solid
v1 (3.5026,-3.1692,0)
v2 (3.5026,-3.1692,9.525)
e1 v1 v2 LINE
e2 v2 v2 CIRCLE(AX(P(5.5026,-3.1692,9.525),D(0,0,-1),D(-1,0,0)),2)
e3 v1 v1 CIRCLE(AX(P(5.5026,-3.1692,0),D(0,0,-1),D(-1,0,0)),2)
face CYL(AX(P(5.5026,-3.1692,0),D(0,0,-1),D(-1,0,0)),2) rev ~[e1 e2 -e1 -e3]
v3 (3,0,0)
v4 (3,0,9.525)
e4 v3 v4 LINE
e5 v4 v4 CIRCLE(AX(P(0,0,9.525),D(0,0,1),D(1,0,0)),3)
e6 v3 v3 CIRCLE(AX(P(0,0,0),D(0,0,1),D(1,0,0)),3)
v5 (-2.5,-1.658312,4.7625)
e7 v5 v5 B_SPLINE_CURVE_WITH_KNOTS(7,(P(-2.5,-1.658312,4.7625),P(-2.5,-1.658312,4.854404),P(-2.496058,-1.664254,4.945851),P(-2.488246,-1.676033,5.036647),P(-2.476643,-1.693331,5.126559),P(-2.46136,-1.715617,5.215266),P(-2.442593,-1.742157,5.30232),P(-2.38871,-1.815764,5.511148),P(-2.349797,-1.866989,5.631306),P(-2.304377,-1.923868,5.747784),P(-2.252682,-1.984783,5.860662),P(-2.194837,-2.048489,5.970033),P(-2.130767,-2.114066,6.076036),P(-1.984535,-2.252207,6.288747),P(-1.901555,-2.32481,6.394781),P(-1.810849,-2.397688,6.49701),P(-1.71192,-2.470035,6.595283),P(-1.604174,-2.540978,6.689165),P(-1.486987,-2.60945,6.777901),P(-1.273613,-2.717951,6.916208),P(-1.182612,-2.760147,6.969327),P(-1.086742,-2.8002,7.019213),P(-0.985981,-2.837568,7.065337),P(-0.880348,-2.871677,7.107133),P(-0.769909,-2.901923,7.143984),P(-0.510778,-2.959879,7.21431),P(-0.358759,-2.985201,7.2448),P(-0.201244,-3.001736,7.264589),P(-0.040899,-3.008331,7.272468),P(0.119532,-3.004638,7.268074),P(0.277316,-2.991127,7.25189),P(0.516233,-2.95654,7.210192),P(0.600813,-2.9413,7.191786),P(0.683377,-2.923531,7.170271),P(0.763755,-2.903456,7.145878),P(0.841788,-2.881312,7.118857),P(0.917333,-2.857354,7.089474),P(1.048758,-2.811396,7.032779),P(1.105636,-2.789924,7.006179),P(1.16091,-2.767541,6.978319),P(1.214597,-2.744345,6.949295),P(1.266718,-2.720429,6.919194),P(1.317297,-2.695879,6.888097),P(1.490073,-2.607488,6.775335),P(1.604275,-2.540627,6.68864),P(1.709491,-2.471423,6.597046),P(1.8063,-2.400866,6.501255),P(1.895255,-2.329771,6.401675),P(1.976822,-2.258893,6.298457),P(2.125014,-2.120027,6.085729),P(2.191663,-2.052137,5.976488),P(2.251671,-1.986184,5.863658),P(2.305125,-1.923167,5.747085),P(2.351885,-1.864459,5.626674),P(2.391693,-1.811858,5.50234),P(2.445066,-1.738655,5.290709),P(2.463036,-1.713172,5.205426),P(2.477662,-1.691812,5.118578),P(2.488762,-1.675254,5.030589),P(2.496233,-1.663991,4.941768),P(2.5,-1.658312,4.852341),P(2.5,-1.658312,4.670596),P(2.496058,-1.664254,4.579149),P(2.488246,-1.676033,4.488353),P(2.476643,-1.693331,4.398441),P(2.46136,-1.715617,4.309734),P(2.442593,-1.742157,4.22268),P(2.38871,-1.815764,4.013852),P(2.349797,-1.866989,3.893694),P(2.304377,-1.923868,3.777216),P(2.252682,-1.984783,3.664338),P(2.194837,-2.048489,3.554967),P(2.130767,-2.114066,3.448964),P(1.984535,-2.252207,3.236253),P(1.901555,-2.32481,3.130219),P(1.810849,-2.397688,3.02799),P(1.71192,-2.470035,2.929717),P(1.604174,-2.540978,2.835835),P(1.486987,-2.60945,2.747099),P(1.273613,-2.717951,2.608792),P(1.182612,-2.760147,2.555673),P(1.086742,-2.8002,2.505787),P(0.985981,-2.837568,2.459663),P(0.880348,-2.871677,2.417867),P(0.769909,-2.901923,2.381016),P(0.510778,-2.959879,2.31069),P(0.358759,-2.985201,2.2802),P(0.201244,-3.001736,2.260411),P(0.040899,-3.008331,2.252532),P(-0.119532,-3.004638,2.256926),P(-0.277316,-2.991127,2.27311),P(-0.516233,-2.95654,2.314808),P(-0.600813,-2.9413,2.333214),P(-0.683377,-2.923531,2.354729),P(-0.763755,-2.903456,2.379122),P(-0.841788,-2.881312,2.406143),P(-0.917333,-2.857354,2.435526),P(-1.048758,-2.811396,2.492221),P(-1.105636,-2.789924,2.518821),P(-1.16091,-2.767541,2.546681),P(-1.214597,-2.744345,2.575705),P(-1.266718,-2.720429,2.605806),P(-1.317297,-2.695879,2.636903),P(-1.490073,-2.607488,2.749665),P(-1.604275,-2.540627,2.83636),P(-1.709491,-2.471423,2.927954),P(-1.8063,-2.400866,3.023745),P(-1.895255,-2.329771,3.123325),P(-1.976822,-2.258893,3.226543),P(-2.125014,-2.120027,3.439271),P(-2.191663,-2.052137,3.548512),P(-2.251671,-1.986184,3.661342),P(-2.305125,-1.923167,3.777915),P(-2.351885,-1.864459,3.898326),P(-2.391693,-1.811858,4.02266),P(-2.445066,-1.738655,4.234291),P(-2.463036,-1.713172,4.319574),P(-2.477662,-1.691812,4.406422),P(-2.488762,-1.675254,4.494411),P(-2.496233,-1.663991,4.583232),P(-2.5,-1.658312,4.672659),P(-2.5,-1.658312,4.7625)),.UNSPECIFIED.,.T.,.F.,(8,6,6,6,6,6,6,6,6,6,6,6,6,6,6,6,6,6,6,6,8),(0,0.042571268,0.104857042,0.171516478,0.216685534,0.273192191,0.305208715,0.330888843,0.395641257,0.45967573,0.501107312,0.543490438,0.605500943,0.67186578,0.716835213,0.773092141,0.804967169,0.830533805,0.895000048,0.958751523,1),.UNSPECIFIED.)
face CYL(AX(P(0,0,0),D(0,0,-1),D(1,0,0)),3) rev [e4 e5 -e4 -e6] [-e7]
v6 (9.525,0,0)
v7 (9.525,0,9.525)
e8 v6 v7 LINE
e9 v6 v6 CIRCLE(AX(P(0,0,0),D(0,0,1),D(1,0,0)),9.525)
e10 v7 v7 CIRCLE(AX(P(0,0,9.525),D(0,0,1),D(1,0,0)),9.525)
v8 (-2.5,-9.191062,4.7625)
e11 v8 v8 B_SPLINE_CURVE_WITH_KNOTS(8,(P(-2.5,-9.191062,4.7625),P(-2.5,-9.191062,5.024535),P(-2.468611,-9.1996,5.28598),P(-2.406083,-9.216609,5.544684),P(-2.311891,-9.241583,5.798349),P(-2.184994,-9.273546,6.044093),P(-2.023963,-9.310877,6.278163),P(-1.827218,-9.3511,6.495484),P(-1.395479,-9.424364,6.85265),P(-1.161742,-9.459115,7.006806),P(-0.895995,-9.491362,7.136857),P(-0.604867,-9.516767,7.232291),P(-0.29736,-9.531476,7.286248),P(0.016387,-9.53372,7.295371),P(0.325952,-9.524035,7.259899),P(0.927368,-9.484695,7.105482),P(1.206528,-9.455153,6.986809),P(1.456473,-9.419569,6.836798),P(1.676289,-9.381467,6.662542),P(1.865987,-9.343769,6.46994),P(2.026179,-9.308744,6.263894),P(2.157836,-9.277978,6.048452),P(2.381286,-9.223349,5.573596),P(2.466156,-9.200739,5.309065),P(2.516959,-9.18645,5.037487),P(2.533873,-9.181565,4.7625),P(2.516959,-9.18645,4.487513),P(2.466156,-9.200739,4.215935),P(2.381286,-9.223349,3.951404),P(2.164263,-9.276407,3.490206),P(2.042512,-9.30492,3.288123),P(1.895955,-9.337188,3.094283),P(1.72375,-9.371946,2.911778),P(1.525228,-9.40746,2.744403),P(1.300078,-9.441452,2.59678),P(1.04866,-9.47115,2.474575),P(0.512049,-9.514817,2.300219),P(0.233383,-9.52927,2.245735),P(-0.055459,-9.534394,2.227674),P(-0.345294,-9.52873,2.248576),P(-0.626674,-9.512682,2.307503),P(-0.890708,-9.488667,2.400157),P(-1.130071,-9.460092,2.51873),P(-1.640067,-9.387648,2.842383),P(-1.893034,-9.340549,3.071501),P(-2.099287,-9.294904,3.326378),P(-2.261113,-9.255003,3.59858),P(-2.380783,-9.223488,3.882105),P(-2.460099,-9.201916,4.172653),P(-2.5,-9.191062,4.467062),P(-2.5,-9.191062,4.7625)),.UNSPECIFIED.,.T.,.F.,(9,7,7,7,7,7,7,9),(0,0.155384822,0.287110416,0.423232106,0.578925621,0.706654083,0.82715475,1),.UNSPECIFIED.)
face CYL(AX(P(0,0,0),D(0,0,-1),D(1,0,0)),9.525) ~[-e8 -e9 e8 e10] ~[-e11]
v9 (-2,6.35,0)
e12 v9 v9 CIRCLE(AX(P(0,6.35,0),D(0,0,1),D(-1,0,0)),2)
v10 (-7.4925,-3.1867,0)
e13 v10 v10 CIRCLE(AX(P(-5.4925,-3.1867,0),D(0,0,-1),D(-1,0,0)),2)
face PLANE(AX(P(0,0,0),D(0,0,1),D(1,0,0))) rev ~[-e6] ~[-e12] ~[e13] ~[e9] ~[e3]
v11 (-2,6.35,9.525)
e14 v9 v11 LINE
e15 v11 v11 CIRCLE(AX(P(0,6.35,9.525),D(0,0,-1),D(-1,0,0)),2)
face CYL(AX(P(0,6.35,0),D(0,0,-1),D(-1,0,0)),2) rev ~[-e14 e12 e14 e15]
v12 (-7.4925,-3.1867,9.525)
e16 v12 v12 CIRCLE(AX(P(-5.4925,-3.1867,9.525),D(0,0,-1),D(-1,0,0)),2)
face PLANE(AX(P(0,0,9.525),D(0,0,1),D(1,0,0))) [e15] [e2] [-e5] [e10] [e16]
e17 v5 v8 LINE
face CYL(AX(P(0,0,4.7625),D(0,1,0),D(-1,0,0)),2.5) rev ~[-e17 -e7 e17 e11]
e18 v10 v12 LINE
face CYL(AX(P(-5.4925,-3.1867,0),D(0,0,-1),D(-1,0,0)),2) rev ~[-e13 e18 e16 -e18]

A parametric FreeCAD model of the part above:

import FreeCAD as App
import Part
import Sketcher

doc = App.newDocument("Part")
body = doc.addObject("PartDesign::Body", "Body")

sketch1 = body.newObject("Sketcher::SketchObject", "Sketch")
sketch1.AttachmentSupport = (doc.getObject("XY_Plane"), [""])
sketch1.MapMode = "FlatFace"
sketch1.addGeometry([
    Part.Circle(App.Vector(0, 0, 0), App.Vector(0, 0, 1), 9.5),
    Part.Circle(App.Vector(0, 0, 0), App.Vector(0, 0, 1), 3),
], False)
sketch1.addConstraint([
    Sketcher.Constraint("Coincident", 0, 3, -1, 1),
    Sketcher.Constraint("Coincident", 1, 3, -1, 1),
    Sketcher.Constraint("Diameter", 1, 6.0),
    Sketcher.Constraint("Diameter", 0, 19.05),
])
pad1 = body.newObject("PartDesign::Pad", "Pad")
pad1.Profile = sketch1
pad1.Length = 9.525

sketch2 = body.newObject("Sketcher::SketchObject", "Sketch001")
sketch2.AttachmentSupport = (doc.getObject("XZ_Plane"), [""])
sketch2.MapMode = "FlatFace"
sketch2.addGeometry(Part.Circle(App.Vector(0, 4.8, 0), App.Vector(0, 0, 1), 2.5), False)
sketch2.addConstraint([
    Sketcher.Constraint("PointOnObject", 0, 3, -2),
    Sketcher.Constraint("Diameter", 0, 5.0),
    Sketcher.Constraint("DistanceY", -1, 1, 0, 3, 4.7625),
])
pocket1 = body.newObject("PartDesign::Pocket", "Pocket")
pocket1.Profile = sketch2
pocket1.Type = "ThroughAll"
pocket1.Reversed = True

sketch3 = body.newObject("Sketcher::SketchObject", "Sketch002")
sketch3.AttachmentSupport = (doc.getObject("XY_Plane"), [""])
sketch3.MapMode = "FlatFace"
sketch3.addGeometry([
    Part.Circle(App.Vector(0, 6.3, 0), App.Vector(0, 0, 1), 2),
    Part.Circle(App.Vector(5.5, -3.2, 0), App.Vector(0, 0, 1), 2),
    Part.Circle(App.Vector(-5.5, -3.2, 0), App.Vector(0, 0, 1), 2),
], False)
sketch3.addConstraint([
    Sketcher.Constraint("Equal", 0, 1),
    Sketcher.Constraint("Equal", 1, 2),
    Sketcher.Constraint("PointOnObject", 0, 3, -2),
    Sketcher.Constraint("Diameter", 0, 4.0),
    Sketcher.Constraint("DistanceY", -1, 1, 0, 3, 6.35),
    Sketcher.Constraint("DistanceX", 2, 3, 1, 3, 10.995),
    Sketcher.Constraint("DistanceX", -1, 1, 1, 3, 5.5026),
    Sketcher.Constraint("DistanceY", 1, 3, -1, 1, 3.1692),
    Sketcher.Constraint("DistanceY", 2, 3, -1, 1, 3.1867),
])
pocket2 = body.newObject("PartDesign::Pocket", "Pocket001")
pocket2.Profile = sketch3
pocket2.Type = "ThroughAll"
pocket2.Reversed = True

doc.recompute()
